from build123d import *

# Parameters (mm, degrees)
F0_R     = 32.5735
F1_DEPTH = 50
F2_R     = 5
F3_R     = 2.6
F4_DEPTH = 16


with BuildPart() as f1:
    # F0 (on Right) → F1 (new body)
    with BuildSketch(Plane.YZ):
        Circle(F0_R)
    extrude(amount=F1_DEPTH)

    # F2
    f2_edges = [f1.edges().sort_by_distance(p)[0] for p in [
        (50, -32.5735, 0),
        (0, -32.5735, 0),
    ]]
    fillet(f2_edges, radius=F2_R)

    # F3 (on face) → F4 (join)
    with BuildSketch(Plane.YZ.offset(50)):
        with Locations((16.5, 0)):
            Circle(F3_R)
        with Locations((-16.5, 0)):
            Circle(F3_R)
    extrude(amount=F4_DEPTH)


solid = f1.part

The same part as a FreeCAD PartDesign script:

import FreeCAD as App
import Part
import Sketcher

V = App.Vector
Q = App.Units.Quantity


def edges_at(feature, points):
    """Names of the edges that pass closest to the given points."""
    edges = feature.Shape.Edges
    near = lambda p: min(range(len(edges)), key=lambda i: edges[i].distToShape(Part.Vertex(*p))[0])
    return sorted({f"Edge{near(p) + 1}" for p in points})

doc = App.newDocument("Part")
body = doc.addObject("PartDesign::Body", "Body")

# Sketch on YZ plane
sketch1 = body.newObject("Sketcher::SketchObject", "Sketch")
sketch1.AttachmentSupport = (doc.getObject("YZ_Plane"), [""])
sketch1.MapMode = "FlatFace"
sketch1.addGeometry(Part.Circle(V(0, 0, 0), V(0, 0, 1), 33), False)
sketch1.addConstraint([
    Sketcher.Constraint("Coincident", 0, 3, -1, 1),
    Sketcher.Constraint("Diameter", 0, Q("65.147 mm")),
])
pad1 = body.newObject("PartDesign::Pad", "Pad")
pad1.Profile = sketch1
pad1.Length = 50
doc.recompute()

fillet = body.newObject("PartDesign::Fillet", "Fillet")
fillet.Base = (pad1, edges_at(pad1, [(50, -32.574, 0), (0, -32.574, 0)]))
fillet.Radius = 5

# Sketch on YZ plane
sketch2 = body.newObject("Sketcher::SketchObject", "Sketch001")
sketch2.AttachmentSupport = (doc.getObject("YZ_Plane"), [""])
sketch2.MapMode = "FlatFace"
sketch2.AttachmentOffset = App.Placement(V(0, 0, 50), App.Rotation())
sketch2.addGeometry([
    Part.Circle(V(16.5, 0, 0), V(0, 0, 1), 2.6),
    Part.Circle(V(-16.5, 0, 0), V(0, 0, 1), 2.6),
], False)
sketch2.addConstraint([
    Sketcher.Constraint("Equal", 0, 1),
    Sketcher.Constraint("Symmetric", 0, 3, 1, 3, -1, 1),
    Sketcher.Constraint("PointOnObject", 0, 3, -1),
    Sketcher.Constraint("Diameter", 0, Q("5.2 mm")),
    Sketcher.Constraint("DistanceX", 1, 3, 0, 3, Q("33 mm")),
])
pad2 = body.newObject("PartDesign::Pad", "Pad001")
pad2.Profile = sketch2
pad2.Length = 16

doc.recompute()
